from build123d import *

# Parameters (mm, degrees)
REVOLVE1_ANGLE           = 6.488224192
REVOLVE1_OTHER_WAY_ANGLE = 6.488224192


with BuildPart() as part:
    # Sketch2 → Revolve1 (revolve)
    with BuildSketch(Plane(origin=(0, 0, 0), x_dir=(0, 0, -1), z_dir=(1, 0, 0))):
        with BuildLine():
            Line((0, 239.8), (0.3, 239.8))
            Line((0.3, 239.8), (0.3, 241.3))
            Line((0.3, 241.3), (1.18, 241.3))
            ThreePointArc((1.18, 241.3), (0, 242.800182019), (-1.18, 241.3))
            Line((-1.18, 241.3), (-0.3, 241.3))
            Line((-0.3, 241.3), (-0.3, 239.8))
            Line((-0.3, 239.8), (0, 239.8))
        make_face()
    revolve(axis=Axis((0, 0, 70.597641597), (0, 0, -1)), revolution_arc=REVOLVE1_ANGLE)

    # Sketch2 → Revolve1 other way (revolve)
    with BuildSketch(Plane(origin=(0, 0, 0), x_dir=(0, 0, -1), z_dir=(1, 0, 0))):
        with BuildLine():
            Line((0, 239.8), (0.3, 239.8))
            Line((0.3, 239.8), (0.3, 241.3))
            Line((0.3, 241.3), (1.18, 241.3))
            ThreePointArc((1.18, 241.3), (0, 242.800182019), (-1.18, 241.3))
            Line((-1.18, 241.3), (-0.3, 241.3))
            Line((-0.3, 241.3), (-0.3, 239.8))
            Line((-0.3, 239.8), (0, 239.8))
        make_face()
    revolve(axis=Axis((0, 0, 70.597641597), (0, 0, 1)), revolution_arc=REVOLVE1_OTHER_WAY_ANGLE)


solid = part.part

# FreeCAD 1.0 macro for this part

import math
import FreeCAD as App
import Part
import Sketcher
from FreeCAD import Vector

doc = App.newDocument("Part")
body = doc.addObject("PartDesign::Body", "Body")

# Sketch on YZ plane
sketch1 = doc.addObject("Sketcher::SketchObject", "Sketch")
body.addObject(sketch1)
sketch1.AttachmentSupport = (doc.YZ_Plane, [""])
sketch1.MapMode = "FlatFace"
sketch1.addGeometry([
    Part.LineSegment(Vector(239.8, -0.3, 0), Vector(241.3, -0.3, 0)),  # 0
    Part.LineSegment(Vector(241.3, -0.3, 0), Vector(241.3, -1.2, 0)),  # 1
    Part.ArcOfCircle(Part.Circle(Vector(241.6, 0, 0), Vector(0, 0, 1), 1.2), math.radians(-104), math.radians(104)),  # 2
    Part.LineSegment(Vector(241.3, 1.2, 0), Vector(241.3, 0.3, 0)),  # 3
    Part.LineSegment(Vector(241.3, 0.3, 0), Vector(239.8, 0.3, 0)),  # 4
    Part.LineSegment(Vector(239.8, 0.3, 0), Vector(239.8, -0.3, 0)),  # 5
], False)
sketch1.addConstraint([
    Sketcher.Constraint("Coincident", 0, 2, 1, 1),
    Sketcher.Constraint("Coincident", 1, 2, 2, 1),
    Sketcher.Constraint("Coincident", 2, 2, 3, 1),
    Sketcher.Constraint("Coincident", 3, 2, 4, 1),
    Sketcher.Constraint("Coincident", 4, 2, 5, 1),
    Sketcher.Constraint("Coincident", 5, 2, 0, 1),
    Sketcher.Constraint("Horizontal", 0),
    Sketcher.Constraint("Vertical", 1),
    Sketcher.Constraint("Vertical", 3),
    Sketcher.Constraint("Horizontal", 4),
    Sketcher.Constraint("Vertical", 5),
    Sketcher.Constraint("Symmetric", 1, 2, 2, 2, -1),
    Sketcher.Constraint("Equal", 1, 3),
    Sketcher.Constraint("DistanceX", 0, 1, 0, 2, 1.5),
    Sketcher.Constraint("DistanceY", 5, 2, 5, 1, 0.6),
    Sketcher.Constraint("DistanceY", 1, 2, 1, 1, 0.88),
    Sketcher.Constraint("DistanceX", -1, 1, 0, 2, 241.3),
    Sketcher.Constraint("Radius", 2, 1.214168),
])
revolution = doc.addObject("PartDesign::Revolution", "Revolution")
body.addObject(revolution)
revolution.Profile = sketch1
revolution.ReferenceAxis = (sketch1, ["V_Axis"])
revolution.Angle = 6.488224
revolution.Reversed = True

# Sketch on YZ plane
sketch2 = doc.addObject("Sketcher::SketchObject", "Sketch001")
body.addObject(sketch2)
sketch2.AttachmentSupport = (doc.YZ_Plane, [""])
sketch2.MapMode = "FlatFace"
sketch2.addGeometry([
    Part.LineSegment(Vector(239.8, -0.3, 0), Vector(241.3, -0.3, 0)),  # 0
    Part.LineSegment(Vector(241.3, -0.3, 0), Vector(241.3, -1.2, 0)),  # 1
    Part.ArcOfCircle(Part.Circle(Vector(241.6, 0, 0), Vector(0, 0, 1), 1.2), math.radians(-104), math.radians(104)),  # 2
    Part.LineSegment(Vector(241.3, 1.2, 0), Vector(241.3, 0.3, 0)),  # 3
    Part.LineSegment(Vector(241.3, 0.3, 0), Vector(239.8, 0.3, 0)),  # 4
    Part.LineSegment(Vector(239.8, 0.3, 0), Vector(239.8, -0.3, 0)),  # 5
], False)
sketch2.addConstraint([
    Sketcher.Constraint("Coincident", 0, 2, 1, 1),
    Sketcher.Constraint("Coincident", 1, 2, 2, 1),
    Sketcher.Constraint("Coincident", 2, 2, 3, 1),
    Sketcher.Constraint("Coincident", 3, 2, 4, 1),
    Sketcher.Constraint("Coincident", 4, 2, 5, 1),
    Sketcher.Constraint("Coincident", 5, 2, 0, 1),
    Sketcher.Constraint("Horizontal", 0),
    Sketcher.Constraint("Vertical", 1),
    Sketcher.Constraint("Vertical", 3),
    Sketcher.Constraint("Horizontal", 4),
    Sketcher.Constraint("Vertical", 5),
    Sketcher.Constraint("Symmetric", 1, 2, 2, 2, -1),
    Sketcher.Constraint("Equal", 1, 3),
    Sketcher.Constraint("DistanceX", 0, 1, 0, 2, 1.5),
    Sketcher.Constraint("DistanceY", 5, 2, 5, 1, 0.6),
    Sketcher.Constraint("DistanceY", 1, 2, 1, 1, 0.88),
    Sketcher.Constraint("DistanceX", -1, 1, 0, 2, 241.3),
    Sketcher.Constraint("Radius", 2, 1.214168),
])
revolution2 = doc.addObject("PartDesign::Revolution", "Revolution001")
body.addObject(revolution2)
revolution2.Profile = sketch2
revolution2.ReferenceAxis = (sketch2, ["V_Axis"])
revolution2.Angle = 6.488224

doc.recompute()
